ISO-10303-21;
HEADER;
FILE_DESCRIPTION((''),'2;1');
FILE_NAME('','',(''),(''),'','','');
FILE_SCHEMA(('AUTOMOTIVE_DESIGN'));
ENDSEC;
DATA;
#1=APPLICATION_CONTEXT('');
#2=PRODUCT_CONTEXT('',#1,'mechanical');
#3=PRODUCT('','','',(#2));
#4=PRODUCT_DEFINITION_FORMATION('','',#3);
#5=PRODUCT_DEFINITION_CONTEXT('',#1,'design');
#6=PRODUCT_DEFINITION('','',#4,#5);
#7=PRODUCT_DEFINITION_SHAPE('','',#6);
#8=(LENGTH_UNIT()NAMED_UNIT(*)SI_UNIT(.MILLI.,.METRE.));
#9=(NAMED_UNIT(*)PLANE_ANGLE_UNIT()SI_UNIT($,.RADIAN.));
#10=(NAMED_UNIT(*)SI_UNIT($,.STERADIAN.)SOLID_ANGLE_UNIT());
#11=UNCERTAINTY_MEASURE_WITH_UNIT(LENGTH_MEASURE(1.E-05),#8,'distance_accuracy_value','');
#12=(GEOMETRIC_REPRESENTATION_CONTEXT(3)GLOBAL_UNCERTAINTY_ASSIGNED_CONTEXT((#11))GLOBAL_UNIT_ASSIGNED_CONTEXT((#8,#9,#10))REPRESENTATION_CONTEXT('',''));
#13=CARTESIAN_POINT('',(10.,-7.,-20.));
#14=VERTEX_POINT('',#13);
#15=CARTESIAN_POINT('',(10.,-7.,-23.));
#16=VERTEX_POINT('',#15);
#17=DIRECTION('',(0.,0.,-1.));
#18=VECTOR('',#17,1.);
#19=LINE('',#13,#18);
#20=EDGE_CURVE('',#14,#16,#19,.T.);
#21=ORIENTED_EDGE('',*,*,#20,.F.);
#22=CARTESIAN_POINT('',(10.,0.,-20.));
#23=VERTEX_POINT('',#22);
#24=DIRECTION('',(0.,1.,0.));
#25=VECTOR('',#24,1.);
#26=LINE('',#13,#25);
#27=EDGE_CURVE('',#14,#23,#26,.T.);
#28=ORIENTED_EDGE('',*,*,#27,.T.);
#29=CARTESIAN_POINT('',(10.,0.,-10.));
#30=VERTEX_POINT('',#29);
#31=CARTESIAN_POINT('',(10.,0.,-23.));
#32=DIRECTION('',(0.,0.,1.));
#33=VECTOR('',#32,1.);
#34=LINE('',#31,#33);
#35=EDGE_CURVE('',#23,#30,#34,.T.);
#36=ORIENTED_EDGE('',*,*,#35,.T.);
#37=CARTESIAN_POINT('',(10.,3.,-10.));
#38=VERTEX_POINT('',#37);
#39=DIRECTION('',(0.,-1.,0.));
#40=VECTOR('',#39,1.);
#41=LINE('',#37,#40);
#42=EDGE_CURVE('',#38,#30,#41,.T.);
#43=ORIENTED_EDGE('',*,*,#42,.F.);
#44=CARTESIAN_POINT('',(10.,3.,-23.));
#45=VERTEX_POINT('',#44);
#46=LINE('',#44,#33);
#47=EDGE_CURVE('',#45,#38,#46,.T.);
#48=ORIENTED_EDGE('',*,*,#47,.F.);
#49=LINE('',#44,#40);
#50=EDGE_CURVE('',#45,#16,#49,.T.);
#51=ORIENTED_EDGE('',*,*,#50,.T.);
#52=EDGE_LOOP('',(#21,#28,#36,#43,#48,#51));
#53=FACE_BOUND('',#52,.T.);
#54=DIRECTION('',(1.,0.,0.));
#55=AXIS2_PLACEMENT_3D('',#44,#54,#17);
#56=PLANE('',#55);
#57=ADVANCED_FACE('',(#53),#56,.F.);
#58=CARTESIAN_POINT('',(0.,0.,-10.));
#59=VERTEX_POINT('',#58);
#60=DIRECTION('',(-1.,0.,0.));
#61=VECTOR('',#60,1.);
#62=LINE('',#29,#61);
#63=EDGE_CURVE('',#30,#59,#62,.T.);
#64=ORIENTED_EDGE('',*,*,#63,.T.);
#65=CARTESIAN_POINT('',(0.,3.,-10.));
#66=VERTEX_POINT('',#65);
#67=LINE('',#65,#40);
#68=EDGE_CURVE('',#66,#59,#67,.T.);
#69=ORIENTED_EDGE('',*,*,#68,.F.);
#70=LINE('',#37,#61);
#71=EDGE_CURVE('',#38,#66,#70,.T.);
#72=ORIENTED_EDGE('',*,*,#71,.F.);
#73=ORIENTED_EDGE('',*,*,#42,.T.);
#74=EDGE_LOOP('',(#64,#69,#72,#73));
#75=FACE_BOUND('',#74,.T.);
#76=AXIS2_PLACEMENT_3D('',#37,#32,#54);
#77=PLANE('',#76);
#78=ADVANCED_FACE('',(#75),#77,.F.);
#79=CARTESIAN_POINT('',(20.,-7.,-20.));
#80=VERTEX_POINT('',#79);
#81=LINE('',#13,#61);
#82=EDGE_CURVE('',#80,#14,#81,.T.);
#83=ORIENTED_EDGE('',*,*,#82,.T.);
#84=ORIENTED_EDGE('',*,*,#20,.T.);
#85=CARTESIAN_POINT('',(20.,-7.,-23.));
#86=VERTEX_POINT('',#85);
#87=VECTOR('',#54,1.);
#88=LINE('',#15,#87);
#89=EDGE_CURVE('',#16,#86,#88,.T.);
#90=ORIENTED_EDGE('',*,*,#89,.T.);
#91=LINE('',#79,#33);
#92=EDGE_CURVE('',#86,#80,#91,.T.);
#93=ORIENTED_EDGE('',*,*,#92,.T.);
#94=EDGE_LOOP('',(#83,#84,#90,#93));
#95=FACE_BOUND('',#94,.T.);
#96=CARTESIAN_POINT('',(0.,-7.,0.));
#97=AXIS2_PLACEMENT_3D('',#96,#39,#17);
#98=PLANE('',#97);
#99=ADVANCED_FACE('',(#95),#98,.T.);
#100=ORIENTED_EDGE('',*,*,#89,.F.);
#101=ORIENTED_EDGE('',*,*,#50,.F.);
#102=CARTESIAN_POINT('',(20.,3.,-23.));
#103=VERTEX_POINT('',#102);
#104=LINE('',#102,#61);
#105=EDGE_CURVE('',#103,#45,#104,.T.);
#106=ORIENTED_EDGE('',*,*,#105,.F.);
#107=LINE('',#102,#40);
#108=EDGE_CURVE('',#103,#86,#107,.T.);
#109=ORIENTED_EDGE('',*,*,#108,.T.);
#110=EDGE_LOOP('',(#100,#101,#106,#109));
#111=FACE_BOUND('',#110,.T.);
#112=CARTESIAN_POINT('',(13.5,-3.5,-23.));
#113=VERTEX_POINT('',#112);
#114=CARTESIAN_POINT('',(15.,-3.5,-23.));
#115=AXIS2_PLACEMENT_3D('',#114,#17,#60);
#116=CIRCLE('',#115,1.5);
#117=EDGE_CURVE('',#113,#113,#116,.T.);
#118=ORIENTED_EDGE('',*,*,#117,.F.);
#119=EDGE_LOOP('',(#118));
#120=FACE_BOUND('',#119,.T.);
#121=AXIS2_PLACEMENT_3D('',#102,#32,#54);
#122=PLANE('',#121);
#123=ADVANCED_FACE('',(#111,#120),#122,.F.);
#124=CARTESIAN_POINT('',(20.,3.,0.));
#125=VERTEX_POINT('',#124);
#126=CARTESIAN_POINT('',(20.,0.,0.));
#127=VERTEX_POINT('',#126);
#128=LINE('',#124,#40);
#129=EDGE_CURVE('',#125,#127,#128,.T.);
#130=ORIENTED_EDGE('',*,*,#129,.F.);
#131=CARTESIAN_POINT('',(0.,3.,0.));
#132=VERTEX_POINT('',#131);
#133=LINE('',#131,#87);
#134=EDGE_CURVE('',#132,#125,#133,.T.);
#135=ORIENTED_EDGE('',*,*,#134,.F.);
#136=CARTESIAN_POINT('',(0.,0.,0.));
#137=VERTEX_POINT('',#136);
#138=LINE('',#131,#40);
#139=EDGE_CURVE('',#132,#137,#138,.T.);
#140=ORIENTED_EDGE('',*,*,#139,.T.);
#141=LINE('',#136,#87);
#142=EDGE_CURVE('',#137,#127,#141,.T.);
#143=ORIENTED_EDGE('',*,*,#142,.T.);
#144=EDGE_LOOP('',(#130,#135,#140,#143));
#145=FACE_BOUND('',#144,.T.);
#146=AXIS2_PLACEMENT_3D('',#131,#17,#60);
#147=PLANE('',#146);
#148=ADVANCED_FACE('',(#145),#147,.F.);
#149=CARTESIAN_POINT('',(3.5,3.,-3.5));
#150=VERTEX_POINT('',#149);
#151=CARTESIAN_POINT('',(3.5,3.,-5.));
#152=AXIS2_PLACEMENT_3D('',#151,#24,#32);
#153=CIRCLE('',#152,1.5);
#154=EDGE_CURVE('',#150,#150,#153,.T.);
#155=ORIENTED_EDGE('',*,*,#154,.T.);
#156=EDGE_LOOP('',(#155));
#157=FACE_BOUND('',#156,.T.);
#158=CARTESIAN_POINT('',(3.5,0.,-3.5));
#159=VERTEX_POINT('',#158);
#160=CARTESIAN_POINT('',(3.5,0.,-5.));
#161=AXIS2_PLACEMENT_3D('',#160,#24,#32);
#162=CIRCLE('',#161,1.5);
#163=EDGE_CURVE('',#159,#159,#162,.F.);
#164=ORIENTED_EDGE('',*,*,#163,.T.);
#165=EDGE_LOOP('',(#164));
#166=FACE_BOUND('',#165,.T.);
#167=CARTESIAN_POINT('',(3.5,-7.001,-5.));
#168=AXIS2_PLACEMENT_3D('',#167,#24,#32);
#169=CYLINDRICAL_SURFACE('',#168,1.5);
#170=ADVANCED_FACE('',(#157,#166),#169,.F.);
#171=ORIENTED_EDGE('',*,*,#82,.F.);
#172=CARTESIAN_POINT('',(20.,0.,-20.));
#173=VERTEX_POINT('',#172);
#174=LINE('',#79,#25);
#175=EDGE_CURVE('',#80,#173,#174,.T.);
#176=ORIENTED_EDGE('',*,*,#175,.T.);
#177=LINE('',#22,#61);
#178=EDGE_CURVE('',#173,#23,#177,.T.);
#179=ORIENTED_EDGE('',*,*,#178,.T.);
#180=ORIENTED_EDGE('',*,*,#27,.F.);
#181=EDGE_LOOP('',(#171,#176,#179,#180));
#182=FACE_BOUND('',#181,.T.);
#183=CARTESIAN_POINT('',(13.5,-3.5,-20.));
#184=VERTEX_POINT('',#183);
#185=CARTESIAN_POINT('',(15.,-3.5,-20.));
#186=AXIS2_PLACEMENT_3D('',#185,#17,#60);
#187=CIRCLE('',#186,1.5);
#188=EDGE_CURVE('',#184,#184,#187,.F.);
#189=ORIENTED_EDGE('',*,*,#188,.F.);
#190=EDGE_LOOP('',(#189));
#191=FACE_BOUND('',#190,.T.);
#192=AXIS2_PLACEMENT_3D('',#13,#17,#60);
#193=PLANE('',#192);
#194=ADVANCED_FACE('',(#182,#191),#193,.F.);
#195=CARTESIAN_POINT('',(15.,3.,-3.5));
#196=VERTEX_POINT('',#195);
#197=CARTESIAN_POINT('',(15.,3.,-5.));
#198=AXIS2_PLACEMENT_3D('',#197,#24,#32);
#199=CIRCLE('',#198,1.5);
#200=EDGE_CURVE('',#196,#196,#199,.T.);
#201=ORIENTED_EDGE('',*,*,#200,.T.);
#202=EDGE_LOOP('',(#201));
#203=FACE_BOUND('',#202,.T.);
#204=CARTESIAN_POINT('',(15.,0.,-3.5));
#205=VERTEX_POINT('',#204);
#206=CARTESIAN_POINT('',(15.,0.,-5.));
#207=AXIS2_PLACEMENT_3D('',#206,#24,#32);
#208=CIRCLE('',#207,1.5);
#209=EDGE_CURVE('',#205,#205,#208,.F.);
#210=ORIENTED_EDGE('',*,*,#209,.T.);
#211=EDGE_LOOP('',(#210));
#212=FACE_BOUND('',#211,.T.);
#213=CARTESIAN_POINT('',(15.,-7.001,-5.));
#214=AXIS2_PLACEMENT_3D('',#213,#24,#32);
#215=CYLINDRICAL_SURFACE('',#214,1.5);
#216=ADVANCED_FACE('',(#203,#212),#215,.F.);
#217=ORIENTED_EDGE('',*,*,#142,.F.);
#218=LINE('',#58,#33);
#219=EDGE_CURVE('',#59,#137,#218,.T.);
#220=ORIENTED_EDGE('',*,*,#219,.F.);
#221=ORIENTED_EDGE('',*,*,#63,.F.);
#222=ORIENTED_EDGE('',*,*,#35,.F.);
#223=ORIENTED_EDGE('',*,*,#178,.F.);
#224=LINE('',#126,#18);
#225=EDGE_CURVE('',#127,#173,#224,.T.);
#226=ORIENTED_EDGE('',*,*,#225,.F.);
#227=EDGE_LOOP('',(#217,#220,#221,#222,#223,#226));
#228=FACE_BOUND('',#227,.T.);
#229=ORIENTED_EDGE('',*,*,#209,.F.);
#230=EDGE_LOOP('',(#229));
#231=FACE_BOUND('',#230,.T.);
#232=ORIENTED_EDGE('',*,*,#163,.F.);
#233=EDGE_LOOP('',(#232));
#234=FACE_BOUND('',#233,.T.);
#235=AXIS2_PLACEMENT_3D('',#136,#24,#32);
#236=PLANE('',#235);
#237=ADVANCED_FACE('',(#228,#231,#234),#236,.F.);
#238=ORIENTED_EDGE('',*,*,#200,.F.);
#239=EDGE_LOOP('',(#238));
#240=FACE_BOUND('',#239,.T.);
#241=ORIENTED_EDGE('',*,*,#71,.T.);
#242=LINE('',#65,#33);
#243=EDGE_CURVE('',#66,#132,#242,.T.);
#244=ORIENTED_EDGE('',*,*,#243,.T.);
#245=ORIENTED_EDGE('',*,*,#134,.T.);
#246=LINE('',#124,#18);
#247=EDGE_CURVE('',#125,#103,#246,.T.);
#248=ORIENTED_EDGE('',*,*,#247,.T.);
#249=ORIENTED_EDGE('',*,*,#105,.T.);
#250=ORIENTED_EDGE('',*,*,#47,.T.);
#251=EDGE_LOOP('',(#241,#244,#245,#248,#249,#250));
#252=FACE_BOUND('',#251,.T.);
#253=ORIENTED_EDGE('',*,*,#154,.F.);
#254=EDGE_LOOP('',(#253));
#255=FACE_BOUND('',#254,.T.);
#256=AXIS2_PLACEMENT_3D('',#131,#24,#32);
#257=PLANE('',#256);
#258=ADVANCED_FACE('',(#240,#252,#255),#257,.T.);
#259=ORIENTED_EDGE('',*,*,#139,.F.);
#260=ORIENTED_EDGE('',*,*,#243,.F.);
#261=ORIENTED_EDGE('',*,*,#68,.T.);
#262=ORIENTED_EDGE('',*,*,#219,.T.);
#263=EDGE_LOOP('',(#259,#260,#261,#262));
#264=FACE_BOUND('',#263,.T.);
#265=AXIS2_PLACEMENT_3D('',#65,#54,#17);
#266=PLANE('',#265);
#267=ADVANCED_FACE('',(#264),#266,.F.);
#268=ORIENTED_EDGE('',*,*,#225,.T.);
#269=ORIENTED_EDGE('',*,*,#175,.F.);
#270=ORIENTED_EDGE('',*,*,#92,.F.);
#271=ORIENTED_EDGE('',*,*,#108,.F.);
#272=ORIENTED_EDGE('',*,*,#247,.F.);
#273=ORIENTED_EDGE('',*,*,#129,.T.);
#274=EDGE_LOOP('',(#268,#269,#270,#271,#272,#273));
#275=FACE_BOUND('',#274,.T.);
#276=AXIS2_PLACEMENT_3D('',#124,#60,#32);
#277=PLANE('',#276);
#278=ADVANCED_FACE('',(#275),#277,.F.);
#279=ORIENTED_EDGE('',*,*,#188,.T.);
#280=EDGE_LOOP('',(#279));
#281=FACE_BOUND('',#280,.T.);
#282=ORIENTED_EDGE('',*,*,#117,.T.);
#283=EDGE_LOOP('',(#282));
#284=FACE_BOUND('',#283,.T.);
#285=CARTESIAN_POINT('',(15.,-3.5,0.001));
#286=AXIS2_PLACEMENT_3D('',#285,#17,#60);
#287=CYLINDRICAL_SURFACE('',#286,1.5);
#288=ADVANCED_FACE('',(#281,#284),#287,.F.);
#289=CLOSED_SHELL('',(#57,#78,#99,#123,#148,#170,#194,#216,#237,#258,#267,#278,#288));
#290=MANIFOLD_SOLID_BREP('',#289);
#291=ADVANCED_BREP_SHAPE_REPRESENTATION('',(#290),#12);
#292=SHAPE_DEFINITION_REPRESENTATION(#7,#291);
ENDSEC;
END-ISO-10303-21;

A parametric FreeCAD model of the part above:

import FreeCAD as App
import Part
import Sketcher

V = App.Vector

doc = App.newDocument("Part")
body = doc.addObject("PartDesign::Body", "Body")

# Sketch on XZ plane
sketch1 = body.newObject("Sketcher::SketchObject", "Sketch")
sketch1.AttachmentSupport = (doc.getObject("XZ_Plane"), [""])
sketch1.MapMode = "FlatFace"
sketch1.addGeometry([
    Part.LineSegment(V(0, 0, 0), V(20, 0, 0)),  # 0
    Part.LineSegment(V(20, 0, 0), V(20, -23, 0)),  # 1
    Part.LineSegment(V(20, -23, 0), V(10, -23, 0)),  # 2
    Part.LineSegment(V(10, -23, 0), V(10, -10, 0)),  # 3
    Part.LineSegment(V(10, -10, 0), V(0, -10, 0)),  # 4
    Part.LineSegment(V(0, -10, 0), V(0, 0, 0)),  # 5
], False)
sketch1.addConstraint([
    Sketcher.Constraint("Coincident", 0, 2, 1, 1),
    Sketcher.Constraint("Coincident", 1, 2, 2, 1),
    Sketcher.Constraint("Coincident", 2, 2, 3, 1),
    Sketcher.Constraint("Coincident", 3, 2, 4, 1),
    Sketcher.Constraint("Coincident", 4, 2, 5, 1),
    Sketcher.Constraint("Coincident", 5, 2, 0, 1),
    Sketcher.Constraint("Horizontal", 0),
    Sketcher.Constraint("Vertical", 1),
    Sketcher.Constraint("Horizontal", 2),
    Sketcher.Constraint("Vertical", 3),
    Sketcher.Constraint("Horizontal", 4),
    Sketcher.Constraint("Vertical", 5),
    Sketcher.Constraint("Coincident", 5, 2, -1, 1),
    Sketcher.Constraint("Equal", 2, 4),
    Sketcher.Constraint("Equal", 4, 5),
    Sketcher.Constraint("DistanceX", 0, 1, 0, 2, 20.0),
    Sketcher.Constraint("DistanceY", 1, 2, 1, 1, 23.0),
])
pad1 = body.newObject("PartDesign::Pad", "Pad")
pad1.Profile = sketch1
pad1.Length = 3
pad1.Reversed = True

# Sketch on XZ plane
sketch2 = body.newObject("Sketcher::SketchObject", "Sketch001")
sketch2.AttachmentSupport = (doc.getObject("XZ_Plane"), [""])
sketch2.MapMode = "FlatFace"
sketch2.addGeometry([
    Part.LineSegment(V(10, -20, 0), V(10, -23, 0)),
    Part.LineSegment(V(10, -23, 0), V(20, -23, 0)),
    Part.LineSegment(V(20, -23, 0), V(20, -20, 0)),
    Part.LineSegment(V(20, -20, 0), V(10, -20, 0)),
], False)
sketch2.addConstraint([
    Sketcher.Constraint("Coincident", 0, 2, 1, 1),
    Sketcher.Constraint("Coincident", 1, 2, 2, 1),
    Sketcher.Constraint("Coincident", 2, 2, 3, 1),
    Sketcher.Constraint("Coincident", 3, 2, 0, 1),
    Sketcher.Constraint("Vertical", 0),
    Sketcher.Constraint("Horizontal", 1),
    Sketcher.Constraint("Vertical", 2),
    Sketcher.Constraint("Horizontal", 3),
    Sketcher.Constraint("DistanceX", 1, 1, 1, 2, 10.0),
    Sketcher.Constraint("DistanceY", 0, 2, 0, 1, 3.0),
    Sketcher.Constraint("DistanceX", -1, 1, 0, 2, 10.0),
    Sketcher.Constraint("DistanceY", 0, 2, -1, 1, 23.0),
])
pad2 = body.newObject("PartDesign::Pad", "Pad001")
pad2.Profile = sketch2
pad2.Length = 7

# Sketch on XY plane
sketch3 = body.newObject("Sketcher::SketchObject", "Sketch002")
sketch3.AttachmentSupport = (doc.getObject("XY_Plane"), [""])
sketch3.MapMode = "FlatFace"
sketch3.AttachmentOffset = App.Placement(V(0, 0, -23), App.Rotation())
sketch3.addGeometry(Part.Circle(V(15, -3.5, 0), V(0, 0, 1), 1.5), False)
sketch3.addConstraint([
    Sketcher.Constraint("Diameter", 0, 3.0),
    Sketcher.Constraint("DistanceX", -1, 1, 0, 3, 15.0),
    Sketcher.Constraint("DistanceY", 0, 3, -1, 1, 3.5),
])
pocket1 = body.newObject("PartDesign::Pocket", "Pocket")
pocket1.Profile = sketch3
pocket1.Type = "UpToFirst"
pocket1.Reversed = True

# Sketch on XZ plane
sketch4 = body.newObject("Sketcher::SketchObject", "Sketch003")
sketch4.AttachmentSupport = (doc.getObject("XZ_Plane"), [""])
sketch4.MapMode = "FlatFace"
sketch4.AttachmentOffset = App.Placement(V(0, 0, -3), App.Rotation())
sketch4.addGeometry(Part.Circle(V(15, -5, 0), V(0, 0, 1), 1.5), False)
sketch4.addConstraint([
    Sketcher.Constraint("Diameter", 0, 3.0),
    Sketcher.Constraint("DistanceX", -1, 1, 0, 3, 15.0),
    Sketcher.Constraint("DistanceY", 0, 3, -1, 1, 5.0),
])
pocket2 = body.newObject("PartDesign::Pocket", "Pocket001")
pocket2.Profile = sketch4
pocket2.Type = "UpToFirst"
pocket2.Reversed = True

# Sketch on XZ plane
sketch5 = body.newObject("Sketcher::SketchObject", "Sketch004")
sketch5.AttachmentSupport = (doc.getObject("XZ_Plane"), [""])
sketch5.MapMode = "FlatFace"
sketch5.AttachmentOffset = App.Placement(V(0, 0, -3), App.Rotation())
sketch5.addGeometry(Part.Circle(V(3.5, -5, 0), V(0, 0, 1), 1.5), False)
sketch5.addConstraint([
    Sketcher.Constraint("Diameter", 0, 3.0),
    Sketcher.Constraint("DistanceY", 0, 3, -1, 1, 5.0),
    Sketcher.Constraint("DistanceX", -1, 1, 0, 3, 3.5),
])
pocket3 = body.newObject("PartDesign::Pocket", "Pocket002")
pocket3.Profile = sketch5
pocket3.Type = "UpToFirst"
pocket3.Reversed = True

doc.recompute()
